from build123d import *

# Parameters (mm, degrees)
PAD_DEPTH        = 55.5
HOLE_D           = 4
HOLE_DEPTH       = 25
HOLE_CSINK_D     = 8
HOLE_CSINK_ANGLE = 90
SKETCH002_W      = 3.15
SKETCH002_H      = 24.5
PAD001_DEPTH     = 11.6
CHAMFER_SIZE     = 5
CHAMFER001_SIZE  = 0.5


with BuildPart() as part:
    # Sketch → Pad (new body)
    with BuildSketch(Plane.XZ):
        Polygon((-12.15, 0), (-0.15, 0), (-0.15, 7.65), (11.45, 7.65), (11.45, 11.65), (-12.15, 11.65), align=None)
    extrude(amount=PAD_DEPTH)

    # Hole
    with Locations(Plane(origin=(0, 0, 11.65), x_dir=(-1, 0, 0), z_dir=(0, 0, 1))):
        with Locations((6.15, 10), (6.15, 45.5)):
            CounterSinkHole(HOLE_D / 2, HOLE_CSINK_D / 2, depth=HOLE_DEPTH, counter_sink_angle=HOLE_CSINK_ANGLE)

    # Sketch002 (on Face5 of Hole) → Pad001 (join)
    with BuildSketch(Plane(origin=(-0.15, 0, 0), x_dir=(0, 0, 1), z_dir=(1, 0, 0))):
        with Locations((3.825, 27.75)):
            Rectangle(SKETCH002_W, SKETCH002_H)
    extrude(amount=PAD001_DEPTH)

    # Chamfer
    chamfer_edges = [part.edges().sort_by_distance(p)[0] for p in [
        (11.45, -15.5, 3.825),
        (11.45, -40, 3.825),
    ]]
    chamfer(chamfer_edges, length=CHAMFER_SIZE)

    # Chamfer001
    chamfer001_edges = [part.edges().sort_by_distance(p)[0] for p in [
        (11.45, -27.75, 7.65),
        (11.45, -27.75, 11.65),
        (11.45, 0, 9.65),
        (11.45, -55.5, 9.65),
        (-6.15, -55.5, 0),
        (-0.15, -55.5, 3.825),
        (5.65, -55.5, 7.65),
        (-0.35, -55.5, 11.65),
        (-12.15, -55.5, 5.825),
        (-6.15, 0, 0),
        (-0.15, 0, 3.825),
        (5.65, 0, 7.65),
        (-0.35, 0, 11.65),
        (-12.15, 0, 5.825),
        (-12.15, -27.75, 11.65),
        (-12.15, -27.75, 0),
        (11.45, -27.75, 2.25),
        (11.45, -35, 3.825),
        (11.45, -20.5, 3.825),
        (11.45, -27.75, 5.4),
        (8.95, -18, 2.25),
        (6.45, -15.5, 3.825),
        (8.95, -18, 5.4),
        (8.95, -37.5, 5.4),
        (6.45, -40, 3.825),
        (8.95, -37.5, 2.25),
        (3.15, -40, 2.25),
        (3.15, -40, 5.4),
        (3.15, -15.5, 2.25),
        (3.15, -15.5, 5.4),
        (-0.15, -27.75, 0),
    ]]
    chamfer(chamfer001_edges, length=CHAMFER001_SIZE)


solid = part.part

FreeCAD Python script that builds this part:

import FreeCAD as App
import Part
import Sketcher
from FreeCAD import Vector
Q = App.Units.Quantity


def edges_at(feature, points):
    """Names of the edges that pass closest to the given points."""
    edges = feature.Shape.Edges
    near = lambda p: min(range(len(edges)), key=lambda i: edges[i].distToShape(Part.Vertex(*p))[0])
    return sorted({f"Edge{near(p) + 1}" for p in points})


def add_polygon(sketch, points):
    """Adds a closed chain of lines whose ends are joined by coincident constraints."""
    first, n = sketch.GeometryCount, len(points)
    for a, b in zip(points, points[1:] + points[:1]):
        sketch.addGeometry(Part.LineSegment(App.Vector(*a, 0), App.Vector(*b, 0)), False)
    for i in range(n):
        sketch.addConstraint(Sketcher.Constraint("Coincident", first + i, 2, first + (i + 1) % n, 1))

doc = App.newDocument("Part")
params = doc.addObject("Spreadsheet::Sheet", "Params")
for row, (alias, value) in enumerate([
    ("sketch1_width", "12 mm"),
    ("sketch1_height", "4 mm"),
    ("sketch1_width2", "11.6 mm"),
    ("sketch1_height2", "7.65 mm"),
    ("pad1_length", "55.5 mm"),
    ("sketch2_diameter", "4 mm"),
    ("hole_diameter", "4 mm"),
    ("hole_depth", "25 mm"),
    ("hole_csink_diameter", "8 mm"),
    ("sketch3_width", "24.5 mm"),
    ("sketch3_height", "3.15 mm"),
    ("pad2_length", "11.6 mm"),
    ("chamfer_size", "5 mm"),
    ("chamfer2_size", "0.5 mm"),
], start=1):
    params.set(f"A{row}", alias)
    params.set(f"B{row}", "=" + value)
    params.setAlias(f"B{row}", alias)

body = doc.addObject("PartDesign::Body", "Body")

sketch1 = body.newObject("Sketcher::SketchObject", "Sketch")
sketch1.AttachmentSupport = (doc.getObject("XZ_Plane"), [""])
sketch1.MapMode = "FlatFace"
add_polygon(sketch1, [(-12.2, 0), (-0.1, 0), (-0.1, 7.7), (11.4, 7.7), (11.4, 11.7), (-12.2, 11.7)])
sketch1.addConstraint(Sketcher.Constraint("Horizontal", 0))
sketch1.addConstraint(Sketcher.Constraint("Vertical", 1))
sketch1.addConstraint(Sketcher.Constraint("Horizontal", 2))
sketch1.addConstraint(Sketcher.Constraint("Vertical", 3))
sketch1.addConstraint(Sketcher.Constraint("Horizontal", 4))
sketch1.addConstraint(Sketcher.Constraint("Vertical", 5))
sketch1.addConstraint(Sketcher.Constraint("PointOnObject", 0, 2, -1))
sketch1.addConstraint(Sketcher.Constraint("DistanceX", 0, 1, 0, 2, Q("12 mm")))
sketch1.addConstraint(Sketcher.Constraint("DistanceY", 3, 1, 3, 2, Q("4 mm")))
sketch1.addConstraint(Sketcher.Constraint("DistanceX", 2, 1, 2, 2, Q("11.6 mm")))
sketch1.addConstraint(Sketcher.Constraint("DistanceY", 1, 1, 1, 2, Q("7.65 mm")))
sketch1.addConstraint(Sketcher.Constraint("DistanceX", 0, 2, -1, 1, Q("0.15 mm")))
sketch1.setExpression("Constraints[13]", "Params.sketch1_width")
sketch1.setExpression("Constraints[14]", "Params.sketch1_height")
sketch1.setExpression("Constraints[15]", "Params.sketch1_width2")
sketch1.setExpression("Constraints[16]", "Params.sketch1_height2")
pad1 = body.newObject("PartDesign::Pad", "Pad")
pad1.Profile = sketch1
pad1.setExpression("Length", "Params.pad1_length")

sketch2 = body.newObject("Sketcher::SketchObject", "Sketch001")
sketch2.AttachmentSupport = (doc.getObject("XY_Plane"), [""])
sketch2.MapMode = "FlatFace"
sketch2.AttachmentOffset = App.Placement(Vector(0, 0, 11.65), App.Rotation())
sketch2.addGeometry(Part.Circle(Vector(-6.2, -10, 0), Vector(0, 0, 1), 2), False)
sketch2.addGeometry(Part.Circle(Vector(-6.2, -45.5, 0), Vector(0, 0, 1), 2), False)
sketch2.addConstraint(Sketcher.Constraint("Equal", 0, 1))
sketch2.addConstraint(Sketcher.Constraint("Vertical", 0, 3, 1, 3))
sketch2.addConstraint(Sketcher.Constraint("Diameter", 0, Q("4 mm")))
sketch2.addConstraint(Sketcher.Constraint("DistanceY", 0, 3, -1, 1, Q("10 mm")))
sketch2.addConstraint(Sketcher.Constraint("DistanceY", 1, 3, -1, 1, Q("45.5 mm")))
sketch2.addConstraint(Sketcher.Constraint("DistanceX", 0, 3, -1, 1, Q("6.15 mm")))
sketch2.setExpression("Constraints[2]", "Params.sketch2_diameter")
doc.recompute()
hole = body.newObject("PartDesign::Hole", "Hole")
hole.Profile = sketch2
hole.ThreadType = "None"
hole.setExpression("Diameter", "Params.hole_diameter")
hole.DepthType = "Dimension"
hole.setExpression("Depth", "Params.hole_depth")
hole.DrillPoint = "Flat"
hole.HoleCutType = "Countersink"
hole.setExpression("HoleCutDiameter", "Params.hole_csink_diameter")
hole.HoleCutCountersinkAngle = 90

sketch3 = body.newObject("Sketcher::SketchObject", "Sketch002")
sketch3.AttachmentSupport = (doc.getObject("YZ_Plane"), [""])
sketch3.MapMode = "FlatFace"
sketch3.AttachmentOffset = App.Placement(Vector(0, 0, -0.15), App.Rotation())
add_polygon(sketch3, [(-40, 2.2), (-15.5, 2.2), (-15.5, 5.4), (-40, 5.4)])
sketch3.addConstraint(Sketcher.Constraint("Horizontal", 0))
sketch3.addConstraint(Sketcher.Constraint("Vertical", 1))
sketch3.addConstraint(Sketcher.Constraint("Horizontal", 2))
sketch3.addConstraint(Sketcher.Constraint("Vertical", 3))
sketch3.addConstraint(Sketcher.Constraint("DistanceX", 0, 1, 0, 2, Q("24.5 mm")))
sketch3.addConstraint(Sketcher.Constraint("DistanceX", 2, 2, -1, 1, Q("40 mm")))
sketch3.addConstraint(Sketcher.Constraint("DistanceY", 1, 1, 1, 2, Q("3.15 mm")))
sketch3.addConstraint(Sketcher.Constraint("DistanceY", -1, 1, 1, 2, Q("5.4 mm")))
sketch3.setExpression("Constraints[8]", "Params.sketch3_width")
sketch3.setExpression("Constraints[10]", "Params.sketch3_height")
pad2 = body.newObject("PartDesign::Pad", "Pad001")
pad2.Profile = sketch3
pad2.setExpression("Length", "Params.pad2_length")
doc.recompute()

chamfer = body.newObject("PartDesign::Chamfer", "Chamfer")
chamfer.Base = (pad2, edges_at(pad2, [(11.45, -15.5, 3.825), (11.45, -40, 3.825)]))
chamfer.setExpression("Size", "Params.chamfer_size")
doc.recompute()

chamfer2 = body.newObject("PartDesign::Chamfer", "Chamfer001")
chamfer2.Base = (chamfer, edges_at(chamfer, [
    (11.45, -27.75, 7.65),
    (11.45, -27.75, 11.65),
    (11.45, 0, 9.65),
    (11.45, -55.5, 9.65),
    (-6.15, -55.5, 0),
    (-0.15, -55.5, 3.825),
    (5.65, -55.5, 7.65),
    (-0.35, -55.5, 11.65),
    (-12.15, -55.5, 5.825),
    (-6.15, 0, 0),
    (-0.15, 0, 3.825),
    (5.65, 0, 7.65),
    (-0.35, 0, 11.65),
    (-12.15, 0, 5.825),
    (-12.15, -27.75, 11.65),
    (-12.15, -27.75, 0),
    (11.45, -27.75, 2.25),
    (11.45, -35, 3.825),
    (11.45, -20.5, 3.825),
    (11.45, -27.75, 5.4),
    (8.95, -18, 2.25),
    (6.45, -15.5, 3.825),
    (8.95, -18, 5.4),
    (8.95, -37.5, 5.4),
    (6.45, -40, 3.825),
    (8.95, -37.5, 2.25),
    (3.15, -40, 2.25),
    (3.15, -40, 5.4),
    (3.15, -15.5, 2.25),
    (3.15, -15.5, 5.4),
    (-0.15, -27.75, 0),
]))
chamfer2.setExpression("Size", "Params.chamfer2_size")

doc.recompute()
